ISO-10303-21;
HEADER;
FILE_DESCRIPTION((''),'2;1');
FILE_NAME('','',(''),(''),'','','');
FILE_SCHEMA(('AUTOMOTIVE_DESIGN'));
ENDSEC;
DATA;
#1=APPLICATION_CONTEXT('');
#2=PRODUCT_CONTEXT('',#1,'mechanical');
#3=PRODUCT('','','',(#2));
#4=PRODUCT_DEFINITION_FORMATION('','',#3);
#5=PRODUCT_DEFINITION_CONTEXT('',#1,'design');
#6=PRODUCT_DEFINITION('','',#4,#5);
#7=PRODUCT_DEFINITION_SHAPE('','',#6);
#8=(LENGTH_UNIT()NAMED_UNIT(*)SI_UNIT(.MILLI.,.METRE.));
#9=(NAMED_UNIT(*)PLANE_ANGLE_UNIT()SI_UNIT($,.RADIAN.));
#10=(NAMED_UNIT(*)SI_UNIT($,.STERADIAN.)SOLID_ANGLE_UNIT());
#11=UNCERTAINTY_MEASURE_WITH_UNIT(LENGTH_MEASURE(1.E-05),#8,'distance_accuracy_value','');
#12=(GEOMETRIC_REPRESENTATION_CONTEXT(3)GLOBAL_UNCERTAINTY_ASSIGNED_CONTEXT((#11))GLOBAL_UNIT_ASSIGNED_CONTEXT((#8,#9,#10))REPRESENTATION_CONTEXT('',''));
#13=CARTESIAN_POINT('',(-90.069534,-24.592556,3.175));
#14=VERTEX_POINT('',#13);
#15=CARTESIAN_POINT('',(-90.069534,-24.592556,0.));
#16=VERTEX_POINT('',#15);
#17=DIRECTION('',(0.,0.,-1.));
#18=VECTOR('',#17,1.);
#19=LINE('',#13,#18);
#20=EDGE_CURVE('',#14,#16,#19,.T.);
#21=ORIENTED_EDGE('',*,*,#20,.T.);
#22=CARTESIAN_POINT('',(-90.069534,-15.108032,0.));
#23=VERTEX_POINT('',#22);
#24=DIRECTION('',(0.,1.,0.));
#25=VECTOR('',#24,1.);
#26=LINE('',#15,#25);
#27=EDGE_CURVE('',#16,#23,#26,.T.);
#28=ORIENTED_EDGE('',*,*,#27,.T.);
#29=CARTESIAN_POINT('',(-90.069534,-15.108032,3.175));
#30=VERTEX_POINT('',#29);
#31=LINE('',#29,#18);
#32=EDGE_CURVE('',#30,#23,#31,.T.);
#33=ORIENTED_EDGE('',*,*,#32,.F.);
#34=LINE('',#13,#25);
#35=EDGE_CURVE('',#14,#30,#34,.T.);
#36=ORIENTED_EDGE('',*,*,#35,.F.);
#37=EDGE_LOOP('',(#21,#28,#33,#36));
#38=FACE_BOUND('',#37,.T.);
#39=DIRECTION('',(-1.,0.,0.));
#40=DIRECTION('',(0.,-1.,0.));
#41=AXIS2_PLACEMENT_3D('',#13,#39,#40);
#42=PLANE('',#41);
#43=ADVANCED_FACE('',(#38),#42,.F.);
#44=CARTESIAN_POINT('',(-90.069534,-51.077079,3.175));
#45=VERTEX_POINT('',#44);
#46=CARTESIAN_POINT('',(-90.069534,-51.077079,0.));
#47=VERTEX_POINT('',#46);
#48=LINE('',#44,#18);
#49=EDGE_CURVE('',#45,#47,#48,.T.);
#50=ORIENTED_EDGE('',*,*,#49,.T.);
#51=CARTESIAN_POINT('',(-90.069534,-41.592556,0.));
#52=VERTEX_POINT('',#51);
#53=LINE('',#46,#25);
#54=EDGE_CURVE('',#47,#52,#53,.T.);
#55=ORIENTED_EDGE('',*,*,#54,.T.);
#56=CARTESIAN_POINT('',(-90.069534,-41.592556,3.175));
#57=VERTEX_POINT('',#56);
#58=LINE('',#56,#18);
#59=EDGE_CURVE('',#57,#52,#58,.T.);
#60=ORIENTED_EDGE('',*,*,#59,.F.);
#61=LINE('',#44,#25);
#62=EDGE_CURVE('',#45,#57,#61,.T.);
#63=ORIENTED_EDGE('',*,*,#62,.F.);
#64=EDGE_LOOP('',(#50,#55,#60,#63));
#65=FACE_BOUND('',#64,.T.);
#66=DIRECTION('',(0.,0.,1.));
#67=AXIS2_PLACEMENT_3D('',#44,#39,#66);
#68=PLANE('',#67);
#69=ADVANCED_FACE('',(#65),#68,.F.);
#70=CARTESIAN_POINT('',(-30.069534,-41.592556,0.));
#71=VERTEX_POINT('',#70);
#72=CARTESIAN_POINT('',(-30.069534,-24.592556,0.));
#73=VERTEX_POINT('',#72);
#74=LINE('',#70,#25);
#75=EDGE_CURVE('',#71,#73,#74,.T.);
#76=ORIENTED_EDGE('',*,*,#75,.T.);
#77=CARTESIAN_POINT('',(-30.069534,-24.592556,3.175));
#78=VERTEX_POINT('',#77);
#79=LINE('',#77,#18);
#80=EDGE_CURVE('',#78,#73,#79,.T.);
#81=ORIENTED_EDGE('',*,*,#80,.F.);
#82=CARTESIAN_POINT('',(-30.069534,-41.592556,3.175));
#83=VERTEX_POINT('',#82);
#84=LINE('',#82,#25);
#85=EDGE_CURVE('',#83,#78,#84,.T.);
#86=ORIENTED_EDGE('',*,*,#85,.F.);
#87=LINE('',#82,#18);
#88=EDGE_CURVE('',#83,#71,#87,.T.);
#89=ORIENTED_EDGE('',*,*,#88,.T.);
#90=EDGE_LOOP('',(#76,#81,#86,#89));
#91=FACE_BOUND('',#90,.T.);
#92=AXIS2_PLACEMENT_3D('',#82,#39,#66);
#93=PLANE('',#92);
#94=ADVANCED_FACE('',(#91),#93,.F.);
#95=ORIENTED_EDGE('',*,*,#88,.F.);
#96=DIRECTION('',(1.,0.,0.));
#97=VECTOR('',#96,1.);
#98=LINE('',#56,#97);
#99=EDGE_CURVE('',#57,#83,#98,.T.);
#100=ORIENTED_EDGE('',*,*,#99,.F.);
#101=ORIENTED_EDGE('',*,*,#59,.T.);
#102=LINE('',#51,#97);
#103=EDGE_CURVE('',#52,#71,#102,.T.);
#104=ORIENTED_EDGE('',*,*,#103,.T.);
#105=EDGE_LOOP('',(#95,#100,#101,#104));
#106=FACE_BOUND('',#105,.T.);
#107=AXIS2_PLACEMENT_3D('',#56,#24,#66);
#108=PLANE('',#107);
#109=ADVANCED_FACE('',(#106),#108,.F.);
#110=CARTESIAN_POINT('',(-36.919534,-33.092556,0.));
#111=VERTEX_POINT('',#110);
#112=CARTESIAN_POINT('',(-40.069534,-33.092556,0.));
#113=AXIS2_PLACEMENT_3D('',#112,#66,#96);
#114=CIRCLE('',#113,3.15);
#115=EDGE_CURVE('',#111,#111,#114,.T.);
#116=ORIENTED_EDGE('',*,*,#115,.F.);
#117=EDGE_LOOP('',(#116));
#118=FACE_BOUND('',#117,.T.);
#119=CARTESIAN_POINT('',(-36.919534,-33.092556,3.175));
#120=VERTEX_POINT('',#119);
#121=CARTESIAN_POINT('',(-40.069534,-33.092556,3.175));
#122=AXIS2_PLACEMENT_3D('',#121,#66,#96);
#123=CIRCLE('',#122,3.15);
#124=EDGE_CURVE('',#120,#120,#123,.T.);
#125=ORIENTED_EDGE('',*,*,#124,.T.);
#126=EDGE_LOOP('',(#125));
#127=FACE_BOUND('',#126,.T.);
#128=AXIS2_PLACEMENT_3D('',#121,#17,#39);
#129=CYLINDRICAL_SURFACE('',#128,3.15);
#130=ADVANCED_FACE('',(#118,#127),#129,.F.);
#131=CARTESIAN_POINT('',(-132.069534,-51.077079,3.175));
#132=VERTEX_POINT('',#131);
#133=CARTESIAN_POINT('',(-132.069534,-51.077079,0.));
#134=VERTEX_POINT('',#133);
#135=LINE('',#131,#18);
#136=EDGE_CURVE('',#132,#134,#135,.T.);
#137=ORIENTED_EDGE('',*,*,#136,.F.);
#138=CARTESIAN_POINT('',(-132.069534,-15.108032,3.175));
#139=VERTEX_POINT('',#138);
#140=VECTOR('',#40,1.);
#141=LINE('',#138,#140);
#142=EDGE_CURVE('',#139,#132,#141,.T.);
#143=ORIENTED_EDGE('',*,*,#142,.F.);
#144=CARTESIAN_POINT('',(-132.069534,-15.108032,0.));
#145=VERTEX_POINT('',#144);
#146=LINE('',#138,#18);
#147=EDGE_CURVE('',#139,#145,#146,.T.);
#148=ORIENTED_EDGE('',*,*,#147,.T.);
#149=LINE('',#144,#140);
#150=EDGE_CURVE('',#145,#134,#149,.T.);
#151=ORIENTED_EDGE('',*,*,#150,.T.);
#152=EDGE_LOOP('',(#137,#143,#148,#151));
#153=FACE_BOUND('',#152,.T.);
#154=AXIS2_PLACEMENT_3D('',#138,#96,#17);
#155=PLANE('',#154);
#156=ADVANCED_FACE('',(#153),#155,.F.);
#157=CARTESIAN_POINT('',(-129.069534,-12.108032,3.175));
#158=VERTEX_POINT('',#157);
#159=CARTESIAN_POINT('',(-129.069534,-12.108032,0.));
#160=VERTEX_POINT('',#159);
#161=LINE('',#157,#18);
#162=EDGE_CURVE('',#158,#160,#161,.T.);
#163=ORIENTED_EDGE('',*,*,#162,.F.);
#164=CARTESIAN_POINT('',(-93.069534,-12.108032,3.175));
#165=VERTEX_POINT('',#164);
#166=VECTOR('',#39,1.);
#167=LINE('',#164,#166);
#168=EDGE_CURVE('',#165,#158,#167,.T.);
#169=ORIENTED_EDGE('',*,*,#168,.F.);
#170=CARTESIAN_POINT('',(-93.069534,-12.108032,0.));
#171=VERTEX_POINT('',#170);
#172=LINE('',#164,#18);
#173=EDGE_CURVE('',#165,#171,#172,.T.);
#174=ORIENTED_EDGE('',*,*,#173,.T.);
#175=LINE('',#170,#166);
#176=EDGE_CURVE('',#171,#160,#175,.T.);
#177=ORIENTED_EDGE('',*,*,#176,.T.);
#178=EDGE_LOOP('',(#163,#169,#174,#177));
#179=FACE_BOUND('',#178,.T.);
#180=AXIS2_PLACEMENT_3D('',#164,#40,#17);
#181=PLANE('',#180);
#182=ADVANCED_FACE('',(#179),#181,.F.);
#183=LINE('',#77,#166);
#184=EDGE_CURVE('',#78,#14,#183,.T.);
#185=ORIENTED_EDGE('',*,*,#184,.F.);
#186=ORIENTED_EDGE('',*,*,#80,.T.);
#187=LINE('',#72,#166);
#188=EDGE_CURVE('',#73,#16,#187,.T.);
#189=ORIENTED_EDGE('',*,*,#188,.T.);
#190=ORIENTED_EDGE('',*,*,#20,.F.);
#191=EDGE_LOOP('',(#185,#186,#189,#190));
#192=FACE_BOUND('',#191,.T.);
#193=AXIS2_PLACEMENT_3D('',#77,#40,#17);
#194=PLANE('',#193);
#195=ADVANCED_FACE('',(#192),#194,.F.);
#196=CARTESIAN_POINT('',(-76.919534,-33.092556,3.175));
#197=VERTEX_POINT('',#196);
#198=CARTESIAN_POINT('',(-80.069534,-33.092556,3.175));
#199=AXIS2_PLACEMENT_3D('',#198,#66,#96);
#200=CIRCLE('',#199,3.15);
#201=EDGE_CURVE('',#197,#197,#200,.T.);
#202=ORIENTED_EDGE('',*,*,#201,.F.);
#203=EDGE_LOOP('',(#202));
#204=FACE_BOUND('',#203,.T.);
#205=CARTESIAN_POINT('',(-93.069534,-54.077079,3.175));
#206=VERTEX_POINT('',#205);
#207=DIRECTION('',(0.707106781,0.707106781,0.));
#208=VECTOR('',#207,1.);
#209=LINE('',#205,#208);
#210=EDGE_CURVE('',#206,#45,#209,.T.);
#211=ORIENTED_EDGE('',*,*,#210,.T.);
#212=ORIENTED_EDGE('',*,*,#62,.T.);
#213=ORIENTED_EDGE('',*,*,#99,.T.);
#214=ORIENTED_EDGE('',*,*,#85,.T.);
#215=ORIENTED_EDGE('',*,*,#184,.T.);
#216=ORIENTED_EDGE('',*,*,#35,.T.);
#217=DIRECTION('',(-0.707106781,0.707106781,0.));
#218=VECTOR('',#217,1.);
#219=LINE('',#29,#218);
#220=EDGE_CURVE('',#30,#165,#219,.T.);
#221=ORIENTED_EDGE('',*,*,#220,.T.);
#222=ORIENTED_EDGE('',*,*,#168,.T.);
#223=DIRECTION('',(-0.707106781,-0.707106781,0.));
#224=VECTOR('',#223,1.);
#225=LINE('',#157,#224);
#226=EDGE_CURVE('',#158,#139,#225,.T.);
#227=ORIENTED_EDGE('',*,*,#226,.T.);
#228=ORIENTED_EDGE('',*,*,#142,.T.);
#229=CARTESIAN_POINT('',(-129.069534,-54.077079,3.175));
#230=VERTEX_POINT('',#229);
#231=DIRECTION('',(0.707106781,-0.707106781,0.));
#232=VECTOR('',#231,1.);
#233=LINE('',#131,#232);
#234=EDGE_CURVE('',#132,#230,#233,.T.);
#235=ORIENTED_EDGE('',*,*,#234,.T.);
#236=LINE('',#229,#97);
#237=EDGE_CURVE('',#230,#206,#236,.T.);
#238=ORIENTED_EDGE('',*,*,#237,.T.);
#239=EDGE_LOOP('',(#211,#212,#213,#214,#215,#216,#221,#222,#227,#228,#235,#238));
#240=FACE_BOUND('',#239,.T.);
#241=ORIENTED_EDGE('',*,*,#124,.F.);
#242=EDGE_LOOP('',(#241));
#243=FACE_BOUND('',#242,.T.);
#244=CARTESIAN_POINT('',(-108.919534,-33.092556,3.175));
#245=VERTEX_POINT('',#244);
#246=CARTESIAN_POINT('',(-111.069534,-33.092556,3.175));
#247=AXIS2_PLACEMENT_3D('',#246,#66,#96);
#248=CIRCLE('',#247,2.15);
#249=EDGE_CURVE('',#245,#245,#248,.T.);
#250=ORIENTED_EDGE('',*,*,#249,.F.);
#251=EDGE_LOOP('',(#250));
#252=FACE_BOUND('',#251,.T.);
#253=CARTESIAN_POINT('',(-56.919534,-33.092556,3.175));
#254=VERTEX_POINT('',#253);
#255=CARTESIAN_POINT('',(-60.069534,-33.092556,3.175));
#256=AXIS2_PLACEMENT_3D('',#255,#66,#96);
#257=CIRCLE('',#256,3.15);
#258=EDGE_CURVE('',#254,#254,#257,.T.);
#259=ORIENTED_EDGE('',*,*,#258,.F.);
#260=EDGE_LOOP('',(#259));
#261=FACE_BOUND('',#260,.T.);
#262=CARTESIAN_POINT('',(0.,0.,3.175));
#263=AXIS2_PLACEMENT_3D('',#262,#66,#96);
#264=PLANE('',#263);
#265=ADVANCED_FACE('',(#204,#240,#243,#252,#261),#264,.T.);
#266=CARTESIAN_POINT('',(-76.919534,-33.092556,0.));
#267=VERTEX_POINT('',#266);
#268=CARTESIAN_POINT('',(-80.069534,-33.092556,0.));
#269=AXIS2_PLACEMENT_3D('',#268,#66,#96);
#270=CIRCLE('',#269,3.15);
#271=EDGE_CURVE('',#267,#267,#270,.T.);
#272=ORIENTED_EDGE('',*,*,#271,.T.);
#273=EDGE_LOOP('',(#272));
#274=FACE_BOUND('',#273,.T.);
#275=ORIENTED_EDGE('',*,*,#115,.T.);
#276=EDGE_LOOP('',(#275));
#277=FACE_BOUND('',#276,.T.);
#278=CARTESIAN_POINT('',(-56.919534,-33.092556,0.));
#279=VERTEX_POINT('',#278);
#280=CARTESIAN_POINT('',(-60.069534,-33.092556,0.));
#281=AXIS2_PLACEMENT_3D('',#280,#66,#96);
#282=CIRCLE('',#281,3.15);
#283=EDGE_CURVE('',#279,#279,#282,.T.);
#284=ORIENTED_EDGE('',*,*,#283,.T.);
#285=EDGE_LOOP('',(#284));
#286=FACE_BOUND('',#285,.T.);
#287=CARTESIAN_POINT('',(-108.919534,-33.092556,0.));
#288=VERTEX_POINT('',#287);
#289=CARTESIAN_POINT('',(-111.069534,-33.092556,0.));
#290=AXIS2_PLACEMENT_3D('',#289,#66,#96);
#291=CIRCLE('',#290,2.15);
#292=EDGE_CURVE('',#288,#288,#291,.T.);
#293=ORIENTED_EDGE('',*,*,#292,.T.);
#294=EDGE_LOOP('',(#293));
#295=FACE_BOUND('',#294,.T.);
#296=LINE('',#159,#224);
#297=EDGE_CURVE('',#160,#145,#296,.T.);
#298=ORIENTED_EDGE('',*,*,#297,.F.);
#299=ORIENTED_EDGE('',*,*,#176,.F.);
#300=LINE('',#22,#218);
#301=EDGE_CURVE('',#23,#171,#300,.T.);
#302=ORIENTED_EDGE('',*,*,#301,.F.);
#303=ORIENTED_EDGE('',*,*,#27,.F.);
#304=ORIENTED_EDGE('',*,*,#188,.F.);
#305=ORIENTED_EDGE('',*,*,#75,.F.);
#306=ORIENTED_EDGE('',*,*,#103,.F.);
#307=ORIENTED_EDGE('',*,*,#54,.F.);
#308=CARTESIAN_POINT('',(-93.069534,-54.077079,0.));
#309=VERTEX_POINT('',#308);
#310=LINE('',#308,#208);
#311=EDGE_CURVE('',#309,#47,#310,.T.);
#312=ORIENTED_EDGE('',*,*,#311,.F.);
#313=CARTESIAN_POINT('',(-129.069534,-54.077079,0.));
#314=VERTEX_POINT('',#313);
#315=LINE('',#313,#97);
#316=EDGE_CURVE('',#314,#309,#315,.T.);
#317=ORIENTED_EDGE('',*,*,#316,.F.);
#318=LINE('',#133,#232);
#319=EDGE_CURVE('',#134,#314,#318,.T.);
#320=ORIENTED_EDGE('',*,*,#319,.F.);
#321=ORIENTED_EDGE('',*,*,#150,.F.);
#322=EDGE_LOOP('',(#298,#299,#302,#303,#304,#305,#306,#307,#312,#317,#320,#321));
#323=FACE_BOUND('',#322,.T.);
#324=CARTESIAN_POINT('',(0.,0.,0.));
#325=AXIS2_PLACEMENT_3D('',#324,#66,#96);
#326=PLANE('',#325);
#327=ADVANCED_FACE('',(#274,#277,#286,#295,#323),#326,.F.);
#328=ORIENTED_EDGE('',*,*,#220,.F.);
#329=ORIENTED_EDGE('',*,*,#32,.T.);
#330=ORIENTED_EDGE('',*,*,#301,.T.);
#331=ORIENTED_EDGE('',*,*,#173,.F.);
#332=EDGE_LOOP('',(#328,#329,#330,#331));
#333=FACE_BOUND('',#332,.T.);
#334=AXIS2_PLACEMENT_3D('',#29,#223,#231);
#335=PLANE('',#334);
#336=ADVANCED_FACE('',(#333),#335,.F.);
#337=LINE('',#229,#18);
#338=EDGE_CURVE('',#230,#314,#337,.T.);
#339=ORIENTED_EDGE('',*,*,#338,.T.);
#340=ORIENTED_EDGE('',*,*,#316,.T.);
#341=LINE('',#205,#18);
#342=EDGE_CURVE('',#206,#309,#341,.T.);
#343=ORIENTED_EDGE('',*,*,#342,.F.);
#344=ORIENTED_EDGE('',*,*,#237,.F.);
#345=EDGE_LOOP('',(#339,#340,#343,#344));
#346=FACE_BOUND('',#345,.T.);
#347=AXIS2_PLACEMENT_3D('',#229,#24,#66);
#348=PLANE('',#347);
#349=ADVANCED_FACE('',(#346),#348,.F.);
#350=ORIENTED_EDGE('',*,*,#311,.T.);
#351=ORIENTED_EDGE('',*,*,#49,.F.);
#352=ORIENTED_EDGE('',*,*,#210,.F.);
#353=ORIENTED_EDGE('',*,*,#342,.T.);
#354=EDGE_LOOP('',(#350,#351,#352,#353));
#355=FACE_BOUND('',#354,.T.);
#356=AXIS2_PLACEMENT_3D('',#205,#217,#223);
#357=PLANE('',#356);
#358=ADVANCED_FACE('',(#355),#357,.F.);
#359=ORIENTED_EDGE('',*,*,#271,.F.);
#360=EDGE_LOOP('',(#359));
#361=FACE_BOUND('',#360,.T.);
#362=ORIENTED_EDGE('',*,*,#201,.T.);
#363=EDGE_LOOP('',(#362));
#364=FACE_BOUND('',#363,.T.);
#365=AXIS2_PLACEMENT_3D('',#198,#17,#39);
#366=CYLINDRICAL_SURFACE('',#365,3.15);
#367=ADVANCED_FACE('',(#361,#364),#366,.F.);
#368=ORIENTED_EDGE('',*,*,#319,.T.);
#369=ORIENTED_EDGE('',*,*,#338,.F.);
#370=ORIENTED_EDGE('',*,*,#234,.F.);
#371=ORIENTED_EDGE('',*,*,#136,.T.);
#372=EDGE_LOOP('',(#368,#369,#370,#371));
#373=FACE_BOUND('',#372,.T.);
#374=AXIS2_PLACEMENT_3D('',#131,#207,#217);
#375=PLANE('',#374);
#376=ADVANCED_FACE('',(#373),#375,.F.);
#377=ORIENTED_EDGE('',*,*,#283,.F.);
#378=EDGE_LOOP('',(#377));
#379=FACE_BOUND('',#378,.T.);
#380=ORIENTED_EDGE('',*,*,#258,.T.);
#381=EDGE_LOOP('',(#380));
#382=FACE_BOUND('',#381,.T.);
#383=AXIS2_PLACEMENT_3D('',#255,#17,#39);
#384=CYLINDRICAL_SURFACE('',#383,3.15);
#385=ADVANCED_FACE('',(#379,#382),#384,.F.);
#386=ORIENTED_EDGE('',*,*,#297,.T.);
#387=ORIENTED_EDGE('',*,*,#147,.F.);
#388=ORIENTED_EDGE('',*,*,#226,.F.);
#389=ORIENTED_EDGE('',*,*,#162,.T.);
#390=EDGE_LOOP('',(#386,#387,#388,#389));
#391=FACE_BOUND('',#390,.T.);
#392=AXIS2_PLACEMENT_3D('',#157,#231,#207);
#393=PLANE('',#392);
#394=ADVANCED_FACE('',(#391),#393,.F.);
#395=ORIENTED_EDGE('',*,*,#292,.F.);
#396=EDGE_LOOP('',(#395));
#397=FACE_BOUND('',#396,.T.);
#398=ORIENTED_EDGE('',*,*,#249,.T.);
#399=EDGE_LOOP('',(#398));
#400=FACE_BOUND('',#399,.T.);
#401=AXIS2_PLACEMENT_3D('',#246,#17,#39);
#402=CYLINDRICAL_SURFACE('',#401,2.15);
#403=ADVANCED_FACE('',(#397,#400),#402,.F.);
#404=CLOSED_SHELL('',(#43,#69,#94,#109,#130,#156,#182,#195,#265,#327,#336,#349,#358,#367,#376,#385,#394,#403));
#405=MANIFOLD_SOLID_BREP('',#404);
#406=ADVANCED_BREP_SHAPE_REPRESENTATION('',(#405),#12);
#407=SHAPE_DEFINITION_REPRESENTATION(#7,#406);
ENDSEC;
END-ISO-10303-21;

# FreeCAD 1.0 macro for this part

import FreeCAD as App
import Part
import Sketcher
from FreeCAD import Vector
Q = App.Units.Quantity

doc = App.newDocument("Part")
body = doc.addObject("PartDesign::Body", "Body")

# Sketch on XY plane
sketch1 = body.newObject("Sketcher::SketchObject", "Sketch")
sketch1.AttachmentSupport = (doc.getObject("XY_Plane"), [""])
sketch1.MapMode = "FlatFace"
sketch1.addGeometry([
    Part.LineSegment(Vector(-90.069534, -51.077079, 0), Vector(-90.069534, -41.592556, 0)),  # 0
    Part.LineSegment(Vector(-90.069534, -41.592556, 0), Vector(-30.069534, -41.592556, 0)),  # 1
    Part.LineSegment(Vector(-30.069534, -41.592556, 0), Vector(-30.069534, -24.592556, 0)),  # 2
    Part.LineSegment(Vector(-30.069534, -24.592556, 0), Vector(-90.069534, -24.592556, 0)),  # 3
    Part.LineSegment(Vector(-90.069534, -24.592556, 0), Vector(-90.069534, -15.108032, 0)),  # 4
    Part.LineSegment(Vector(-90.069534, -15.108032, 0), Vector(-93.069534, -12.108032, 0)),  # 5
    Part.LineSegment(Vector(-93.069534, -12.108032, 0), Vector(-129.069534, -12.108032, 0)),  # 6
    Part.LineSegment(Vector(-129.069534, -12.108032, 0), Vector(-132.069534, -15.108032, 0)),  # 7
    Part.LineSegment(Vector(-132.069534, -15.108032, 0), Vector(-132.069534, -51.077079, 0)),  # 8
    Part.LineSegment(Vector(-132.069534, -51.077079, 0), Vector(-129.069534, -54.077079, 0)),  # 9
    Part.LineSegment(Vector(-129.069534, -54.077079, 0), Vector(-93.069534, -54.077079, 0)),  # 10
    Part.LineSegment(Vector(-93.069534, -54.077079, 0), Vector(-90.069534, -51.077079, 0)),  # 11
    Part.Circle(Vector(-111.069534, -33.092556, 0), Vector(0, 0, 1), 2.15),  # 12
    Part.Circle(Vector(-80.069534, -33.092556, 0), Vector(0, 0, 1), 3.15),  # 13
    Part.Circle(Vector(-60.069534, -33.092556, 0), Vector(0, 0, 1), 3.15),  # 14
    Part.Circle(Vector(-40.069534, -33.092556, 0), Vector(0, 0, 1), 3.15),  # 15
], False)
sketch1.addConstraint([
    Sketcher.Constraint("Coincident", 0, 2, 1, 1),
    Sketcher.Constraint("Coincident", 1, 2, 2, 1),
    Sketcher.Constraint("Coincident", 2, 2, 3, 1),
    Sketcher.Constraint("Coincident", 3, 2, 4, 1),
    Sketcher.Constraint("Coincident", 4, 2, 5, 1),
    Sketcher.Constraint("Coincident", 5, 2, 6, 1),
    Sketcher.Constraint("Coincident", 6, 2, 7, 1),
    Sketcher.Constraint("Coincident", 7, 2, 8, 1),
    Sketcher.Constraint("Coincident", 8, 2, 9, 1),
    Sketcher.Constraint("Coincident", 9, 2, 10, 1),
    Sketcher.Constraint("Coincident", 10, 2, 11, 1),
    Sketcher.Constraint("Coincident", 11, 2, 0, 1),
    Sketcher.Constraint("Vertical", 0),
    Sketcher.Constraint("Horizontal", 1),
    Sketcher.Constraint("Vertical", 2),
    Sketcher.Constraint("Horizontal", 3),
    Sketcher.Constraint("Vertical", 4),
    Sketcher.Constraint("Horizontal", 6),
    Sketcher.Constraint("Vertical", 8),
    Sketcher.Constraint("Horizontal", 10),
    Sketcher.Constraint("Equal", 13, 14),
    Sketcher.Constraint("Equal", 14, 15),
    Sketcher.Constraint("Perpendicular", 5, 7),
    Sketcher.Constraint("Perpendicular", 7, 9),
    Sketcher.Constraint("Perpendicular", 9, 11),
    Sketcher.Constraint("Horizontal", 12, 3, 13, 3),
    Sketcher.Constraint("Horizontal", 13, 3, 14, 3),
    Sketcher.Constraint("Horizontal", 14, 3, 15, 3),
    Sketcher.Constraint("Horizontal", 4, 2, 7, 2),
    Sketcher.Constraint("Horizontal", 8, 2, 11, 2),
    Sketcher.Constraint("Vertical", 0, 2, 3, 2),
    Sketcher.Constraint("Vertical", 6, 2, 9, 2),
    Sketcher.Constraint("Vertical", 5, 2, 10, 2),
    Sketcher.Constraint("Equal", 0, 4),
    Sketcher.Constraint("Diameter", 12, Q("4.3 mm")),
    Sketcher.Constraint("Diameter", 13, Q("6.3 mm")),
    Sketcher.Constraint("DistanceX", 1, 1, 1, 2, Q("60 mm")),
    Sketcher.Constraint("DistanceX", 6, 2, 6, 1, Q("36 mm")),
    Sketcher.Constraint("DistanceY", 2, 1, 2, 2, Q("17 mm")),
    Sketcher.Constraint("DistanceX", 12, 3, 13, 3, Q("31 mm")),
    Sketcher.Constraint("DistanceX", 13, 3, 14, 3, Q("20 mm")),
    Sketcher.Constraint("DistanceX", 14, 3, 15, 3, Q("20 mm")),
    Sketcher.Constraint("DistanceX", 0, 2, 13, 3, Q("10 mm")),
    Sketcher.Constraint("DistanceX", 5, 2, 4, 2, Q("3 mm")),
    Sketcher.Constraint("DistanceY", 0, 2, 13, 3, Q("8.5 mm")),
    Sketcher.Constraint("DistanceY", 0, 1, 0, 2, Q("9.484523 mm")),
    Sketcher.Constraint("DistanceY", 8, 2, -1, 1, Q("51.077079 mm")),
    Sketcher.Constraint("DistanceX", 12, 3, -1, 1, Q("111.069534 mm")),
])
pad1 = body.newObject("PartDesign::Pad", "Pad")
pad1.Profile = sketch1
pad1.Length = 3.175

doc.recompute()
